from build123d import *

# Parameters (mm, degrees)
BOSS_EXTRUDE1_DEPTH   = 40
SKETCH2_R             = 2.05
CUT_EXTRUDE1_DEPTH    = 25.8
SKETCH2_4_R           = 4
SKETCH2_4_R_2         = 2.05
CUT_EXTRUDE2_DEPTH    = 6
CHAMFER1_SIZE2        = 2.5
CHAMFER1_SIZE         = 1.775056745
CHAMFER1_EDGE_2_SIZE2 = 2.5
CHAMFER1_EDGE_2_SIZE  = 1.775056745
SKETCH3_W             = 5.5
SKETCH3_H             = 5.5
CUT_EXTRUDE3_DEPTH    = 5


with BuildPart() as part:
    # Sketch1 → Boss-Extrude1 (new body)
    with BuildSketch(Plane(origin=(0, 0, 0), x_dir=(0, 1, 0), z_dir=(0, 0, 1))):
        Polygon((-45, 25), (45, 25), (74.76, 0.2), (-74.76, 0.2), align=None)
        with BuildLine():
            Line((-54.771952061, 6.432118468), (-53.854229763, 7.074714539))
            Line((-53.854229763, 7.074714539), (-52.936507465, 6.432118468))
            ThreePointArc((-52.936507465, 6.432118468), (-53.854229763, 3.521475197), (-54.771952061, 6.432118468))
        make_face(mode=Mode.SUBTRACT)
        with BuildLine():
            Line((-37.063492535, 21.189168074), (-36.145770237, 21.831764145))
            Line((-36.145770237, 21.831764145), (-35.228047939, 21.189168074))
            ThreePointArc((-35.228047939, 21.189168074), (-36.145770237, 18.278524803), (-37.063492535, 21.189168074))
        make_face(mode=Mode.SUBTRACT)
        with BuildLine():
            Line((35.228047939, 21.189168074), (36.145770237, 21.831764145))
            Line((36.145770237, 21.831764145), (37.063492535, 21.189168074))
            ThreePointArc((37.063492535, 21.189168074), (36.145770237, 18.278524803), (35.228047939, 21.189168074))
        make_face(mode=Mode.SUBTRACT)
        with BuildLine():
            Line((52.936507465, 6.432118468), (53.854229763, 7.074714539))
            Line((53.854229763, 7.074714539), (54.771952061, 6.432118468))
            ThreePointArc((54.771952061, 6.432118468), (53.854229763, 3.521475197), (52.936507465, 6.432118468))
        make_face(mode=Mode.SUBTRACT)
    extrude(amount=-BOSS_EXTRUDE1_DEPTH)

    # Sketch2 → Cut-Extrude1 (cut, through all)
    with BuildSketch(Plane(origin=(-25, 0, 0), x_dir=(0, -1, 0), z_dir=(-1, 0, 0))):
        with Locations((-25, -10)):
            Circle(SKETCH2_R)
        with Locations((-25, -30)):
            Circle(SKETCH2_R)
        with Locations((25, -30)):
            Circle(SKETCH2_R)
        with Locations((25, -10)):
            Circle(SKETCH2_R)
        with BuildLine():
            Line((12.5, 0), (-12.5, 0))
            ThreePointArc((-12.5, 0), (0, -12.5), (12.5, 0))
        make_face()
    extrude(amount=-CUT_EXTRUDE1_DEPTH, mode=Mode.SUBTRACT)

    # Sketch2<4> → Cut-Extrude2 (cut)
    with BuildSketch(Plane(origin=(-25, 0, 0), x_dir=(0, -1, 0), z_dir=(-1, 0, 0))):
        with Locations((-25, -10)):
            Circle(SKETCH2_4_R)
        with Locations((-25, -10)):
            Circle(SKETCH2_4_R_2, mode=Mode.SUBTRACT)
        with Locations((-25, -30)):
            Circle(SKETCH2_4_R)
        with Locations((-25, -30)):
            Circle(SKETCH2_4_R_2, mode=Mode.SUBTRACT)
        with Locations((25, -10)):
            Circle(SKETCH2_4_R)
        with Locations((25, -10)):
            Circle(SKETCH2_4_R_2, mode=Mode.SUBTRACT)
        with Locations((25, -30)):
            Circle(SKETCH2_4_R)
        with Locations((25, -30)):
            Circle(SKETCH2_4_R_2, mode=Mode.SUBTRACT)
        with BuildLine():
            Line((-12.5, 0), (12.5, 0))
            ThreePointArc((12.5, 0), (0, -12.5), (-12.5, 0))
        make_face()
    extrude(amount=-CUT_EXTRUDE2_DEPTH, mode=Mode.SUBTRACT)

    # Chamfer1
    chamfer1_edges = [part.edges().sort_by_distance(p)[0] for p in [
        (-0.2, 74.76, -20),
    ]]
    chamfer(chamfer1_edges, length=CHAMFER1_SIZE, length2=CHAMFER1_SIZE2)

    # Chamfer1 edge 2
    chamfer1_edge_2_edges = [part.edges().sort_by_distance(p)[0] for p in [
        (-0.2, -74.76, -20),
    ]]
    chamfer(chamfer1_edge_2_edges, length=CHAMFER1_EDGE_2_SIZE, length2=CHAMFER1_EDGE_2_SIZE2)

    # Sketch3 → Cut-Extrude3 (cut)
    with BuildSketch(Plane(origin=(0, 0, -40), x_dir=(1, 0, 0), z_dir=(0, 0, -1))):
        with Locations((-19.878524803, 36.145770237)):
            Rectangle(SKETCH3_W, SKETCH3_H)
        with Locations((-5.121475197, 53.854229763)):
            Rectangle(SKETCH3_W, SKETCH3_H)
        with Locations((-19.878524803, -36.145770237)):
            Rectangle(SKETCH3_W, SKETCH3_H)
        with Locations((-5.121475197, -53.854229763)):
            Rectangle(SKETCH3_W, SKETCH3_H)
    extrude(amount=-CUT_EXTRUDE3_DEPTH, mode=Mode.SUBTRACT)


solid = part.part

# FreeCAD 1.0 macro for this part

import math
import FreeCAD as App
import Part
import Sketcher

V = App.Vector
Q = App.Units.Quantity


def edges_at(feature, points):
    """Names of the edges that pass closest to the given points."""
    edges = feature.Shape.Edges
    near = lambda p: min(range(len(edges)), key=lambda i: edges[i].distToShape(Part.Vertex(*p))[0])
    return sorted({f"Edge{near(p) + 1}" for p in points})


def add_polygon(sketch, points):
    """Adds a closed chain of lines whose ends are joined by coincident constraints."""
    first, n = sketch.GeometryCount, len(points)
    for a, b in zip(points, points[1:] + points[:1]):
        sketch.addGeometry(Part.LineSegment(App.Vector(*a, 0), App.Vector(*b, 0)), False)
    for i in range(n):
        sketch.addConstraint(Sketcher.Constraint("Coincident", first + i, 2, first + (i + 1) % n, 1))

doc = App.newDocument("Part")
body = doc.addObject("PartDesign::Body", "Body")

# Sketch on XY plane
sketch1 = body.newObject("Sketcher::SketchObject", "Sketch")
sketch1.AttachmentSupport = (doc.getObject("XY_Plane"), [""])
sketch1.MapMode = "FlatFace"
add_polygon(sketch1, [(-25, 45), (-25, -45), (-0.2, -74.8), (-0.2, 74.8)])  # lines 0-3
sketch1.addGeometry(Part.LineSegment(V(-6.4, 52.9, 0), V(-7.1, 53.9, 0)), False)  # 4
sketch1.addGeometry(Part.LineSegment(V(-7.1, 53.9, 0), V(-6.4, 54.8, 0)), False)  # 5
sketch1.addGeometry(Part.ArcOfCircle(Part.Circle(V(-5.1, 53.9, 0), V(0, 0, 1), 1.6), math.radians(-145), math.radians(145)), False)  # 6
sketch1.addGeometry(Part.LineSegment(V(-6.4, -54.8, 0), V(-7.1, -53.9, 0)), False)  # 7
sketch1.addGeometry(Part.LineSegment(V(-7.1, -53.9, 0), V(-6.4, -52.9, 0)), False)  # 8
sketch1.addGeometry(Part.ArcOfCircle(Part.Circle(V(-5.1, -53.9, 0), V(0, 0, 1), 1.6), math.radians(-145), math.radians(145)), False)  # 9
sketch1.addGeometry(Part.LineSegment(V(-21.2, 35.2, 0), V(-21.8, 36.1, 0)), False)  # 10
sketch1.addGeometry(Part.LineSegment(V(-21.8, 36.1, 0), V(-21.2, 37.1, 0)), False)  # 11
sketch1.addGeometry(Part.ArcOfCircle(Part.Circle(V(-19.9, 36.1, 0), V(0, 0, 1), 1.6), math.radians(-145), math.radians(145)), False)  # 12
sketch1.addGeometry(Part.LineSegment(V(-21.2, -37.1, 0), V(-21.8, -36.1, 0)), False)  # 13
sketch1.addGeometry(Part.LineSegment(V(-21.8, -36.1, 0), V(-21.2, -35.2, 0)), False)  # 14
sketch1.addGeometry(Part.ArcOfCircle(Part.Circle(V(-19.9, -36.1, 0), V(0, 0, 1), 1.6), math.radians(-145), math.radians(145)), False)  # 15
sketch1.addConstraint(Sketcher.Constraint("Coincident", 4, 2, 5, 1))
sketch1.addConstraint(Sketcher.Constraint("Tangent", 5, 2, 6, 2))
sketch1.addConstraint(Sketcher.Constraint("Tangent", 6, 1, 4, 1))
sketch1.addConstraint(Sketcher.Constraint("Coincident", 7, 2, 8, 1))
sketch1.addConstraint(Sketcher.Constraint("Tangent", 8, 2, 9, 2))
sketch1.addConstraint(Sketcher.Constraint("Tangent", 9, 1, 7, 1))
sketch1.addConstraint(Sketcher.Constraint("Coincident", 10, 2, 11, 1))
sketch1.addConstraint(Sketcher.Constraint("Tangent", 11, 2, 12, 2))
sketch1.addConstraint(Sketcher.Constraint("Tangent", 12, 1, 10, 1))
sketch1.addConstraint(Sketcher.Constraint("Coincident", 13, 2, 14, 1))
sketch1.addConstraint(Sketcher.Constraint("Tangent", 14, 2, 15, 2))
sketch1.addConstraint(Sketcher.Constraint("Tangent", 15, 1, 13, 1))
sketch1.addConstraint(Sketcher.Constraint("Vertical", 0))
sketch1.addConstraint(Sketcher.Constraint("Vertical", 2))
sketch1.addConstraint(Sketcher.Constraint("Equal", 6, 9))
sketch1.addConstraint(Sketcher.Constraint("Equal", 9, 12))
sketch1.addConstraint(Sketcher.Constraint("Equal", 12, 15))
sketch1.addConstraint(Sketcher.Constraint("Symmetric", 6, 3, 9, 3, -1))
sketch1.addConstraint(Sketcher.Constraint("Symmetric", 12, 3, 15, 3, -1))
sketch1.addConstraint(Sketcher.Constraint("Symmetric", 4, 2, 7, 2, -1))
sketch1.addConstraint(Sketcher.Constraint("Symmetric", 10, 2, 13, 2, -1))
sketch1.addConstraint(Sketcher.Constraint("Parallel", 4, 7))
sketch1.addConstraint(Sketcher.Constraint("Parallel", 7, 10))
sketch1.addConstraint(Sketcher.Constraint("Parallel", 8, 11))
sketch1.addConstraint(Sketcher.Constraint("Equal", 1, 3))
sketch1.addConstraint(Sketcher.Constraint("Radius", 6, Q("1.6 mm")))
sketch1.addConstraint(Sketcher.Constraint("DistanceY", 0, 2, 0, 1, Q("90 mm")))
sketch1.addConstraint(Sketcher.Constraint("Angle", 4, Q("125 deg")))
sketch1.addConstraint(Sketcher.Constraint("DistanceX", 0, 2, -1, 1, Q("25 mm")))
sketch1.addConstraint(Sketcher.Constraint("DistanceY", 0, 2, -1, 1, Q("45 mm")))
sketch1.addConstraint(Sketcher.Constraint("DistanceY", 9, 3, 12, 3, Q("90 mm")))
sketch1.addConstraint(Sketcher.Constraint("DistanceY", 2, 1, 2, 2, Q("149.52 mm")))
sketch1.addConstraint(Sketcher.Constraint("DistanceX", 1, 2, -1, 1, Q("0.2 mm")))
sketch1.addConstraint(Sketcher.Constraint("DistanceY", -1, 1, 6, 3, Q("53.85423 mm")))
sketch1.addConstraint(Sketcher.Constraint("DistanceX", 5, 2, -1, 1, Q("6.432118 mm")))
sketch1.addConstraint(Sketcher.Constraint("DistanceX", 11, 2, -1, 1, Q("21.189168 mm")))
pad1 = body.newObject("PartDesign::Pad", "Pad")
pad1.Profile = sketch1
pad1.Length = 40
pad1.Reversed = True

# Sketch on YZ plane
sketch2 = body.newObject("Sketcher::SketchObject", "Sketch001")
sketch2.AttachmentSupport = (doc.getObject("YZ_Plane"), [""])
sketch2.MapMode = "FlatFace"
sketch2.AttachmentOffset = App.Placement(V(0, 0, -25), App.Rotation())
sketch2.addGeometry(Part.Circle(V(25, -10, 0), V(0, 0, 1), 2), False)
sketch2.addGeometry(Part.Circle(V(25, -30, 0), V(0, 0, 1), 2), False)
sketch2.addGeometry(Part.Circle(V(-25, -30, 0), V(0, 0, 1), 2), False)
sketch2.addGeometry(Part.Circle(V(-25, -10, 0), V(0, 0, 1), 2), False)
sketch2.addGeometry(Part.LineSegment(V(-12.5, 0, 0), V(12.5, 0, 0)), False)
sketch2.addGeometry(Part.ArcOfCircle(Part.Circle(V(0, 0, 0), V(0, 0, 1), 12.5), math.radians(180), math.radians(360)), False)
sketch2.addConstraint(Sketcher.Constraint("Coincident", 4, 1, 5, 1))
sketch2.addConstraint(Sketcher.Constraint("Coincident", 5, 2, 4, 2))
sketch2.addConstraint(Sketcher.Constraint("Horizontal", 4))
sketch2.addConstraint(Sketcher.Constraint("Coincident", 5, 3, -1, 1))
sketch2.addConstraint(Sketcher.Constraint("Equal", 0, 1))
sketch2.addConstraint(Sketcher.Constraint("Equal", 1, 2))
sketch2.addConstraint(Sketcher.Constraint("Equal", 2, 3))
sketch2.addConstraint(Sketcher.Constraint("Symmetric", 1, 3, 2, 3, -2))
sketch2.addConstraint(Sketcher.Constraint("Symmetric", 0, 3, 3, 3, -2))
sketch2.addConstraint(Sketcher.Constraint("PointOnObject", 4, 1, -1))
sketch2.addConstraint(Sketcher.Constraint("Vertical", 0, 3, 1, 3))
sketch2.addConstraint(Sketcher.Constraint("Diameter", 0, Q("4.1 mm")))
sketch2.addConstraint(Sketcher.Constraint("Radius", 5, Q("12.5 mm")))
sketch2.addConstraint(Sketcher.Constraint("DistanceX", -1, 1, 0, 3, Q("25 mm")))
sketch2.addConstraint(Sketcher.Constraint("DistanceY", 0, 3, -1, 1, Q("10 mm")))
sketch2.addConstraint(Sketcher.Constraint("DistanceY", 1, 3, -1, 1, Q("30 mm")))
pocket1 = body.newObject("PartDesign::Pocket", "Pocket")
pocket1.Profile = sketch2
pocket1.Type = "ThroughAll"
pocket1.Reversed = True

# Sketch on YZ plane
sketch3 = body.newObject("Sketcher::SketchObject", "Sketch002")
sketch3.AttachmentSupport = (doc.getObject("YZ_Plane"), [""])
sketch3.MapMode = "FlatFace"
sketch3.AttachmentOffset = App.Placement(V(0, 0, -25), App.Rotation())
sketch3.addGeometry(Part.Circle(V(25, -10, 0), V(0, 0, 1), 4), False)
sketch3.addGeometry(Part.Circle(V(25, -10, 0), V(0, 0, 1), 2), False)
sketch3.addGeometry(Part.Circle(V(25, -30, 0), V(0, 0, 1), 4), False)
sketch3.addGeometry(Part.Circle(V(25, -30, 0), V(0, 0, 1), 2), False)
sketch3.addGeometry(Part.Circle(V(-25, -10, 0), V(0, 0, 1), 4), False)
sketch3.addGeometry(Part.Circle(V(-25, -10, 0), V(0, 0, 1), 2), False)
sketch3.addGeometry(Part.Circle(V(-25, -30, 0), V(0, 0, 1), 4), False)
sketch3.addGeometry(Part.Circle(V(-25, -30, 0), V(0, 0, 1), 2), False)
sketch3.addGeometry(Part.LineSegment(V(-12.5, 0, 0), V(12.5, 0, 0)), False)
sketch3.addGeometry(Part.ArcOfCircle(Part.Circle(V(0, 0, 0), V(0, 0, 1), 12.5), math.radians(180), math.radians(360)), False)
sketch3.addConstraint(Sketcher.Constraint("Coincident", 8, 1, 9, 1))
sketch3.addConstraint(Sketcher.Constraint("Coincident", 9, 2, 8, 2))
sketch3.addConstraint(Sketcher.Constraint("Horizontal", 8))
sketch3.addConstraint(Sketcher.Constraint("Coincident", 9, 3, -1, 1))
sketch3.addConstraint(Sketcher.Constraint("Coincident", 1, 3, 0, 3))
sketch3.addConstraint(Sketcher.Constraint("Coincident", 3, 3, 2, 3))
sketch3.addConstraint(Sketcher.Constraint("Coincident", 5, 3, 4, 3))
sketch3.addConstraint(Sketcher.Constraint("Coincident", 7, 3, 6, 3))
sketch3.addConstraint(Sketcher.Constraint("Equal", 0, 2))
sketch3.addConstraint(Sketcher.Constraint("Equal", 1, 3))
sketch3.addConstraint(Sketcher.Constraint("Equal", 2, 4))
sketch3.addConstraint(Sketcher.Constraint("Equal", 3, 5))
sketch3.addConstraint(Sketcher.Constraint("Equal", 4, 6))
sketch3.addConstraint(Sketcher.Constraint("Equal", 5, 7))
sketch3.addConstraint(Sketcher.Constraint("Symmetric", 0, 3, 4, 3, -2))
sketch3.addConstraint(Sketcher.Constraint("Symmetric", 2, 3, 6, 3, -2))
sketch3.addConstraint(Sketcher.Constraint("PointOnObject", 8, 1, -1))
sketch3.addConstraint(Sketcher.Constraint("Vertical", 1, 3, 2, 3))
sketch3.addConstraint(Sketcher.Constraint("Diameter", 0, Q("8 mm")))
sketch3.addConstraint(Sketcher.Constraint("Diameter", 1, Q("4.1 mm")))
sketch3.addConstraint(Sketcher.Constraint("Radius", 9, Q("12.5 mm")))
sketch3.addConstraint(Sketcher.Constraint("DistanceX", -1, 1, 0, 3, Q("25 mm")))
sketch3.addConstraint(Sketcher.Constraint("DistanceY", 0, 3, -1, 1, Q("10 mm")))
sketch3.addConstraint(Sketcher.Constraint("DistanceY", 2, 3, -1, 1, Q("30 mm")))
pocket2 = body.newObject("PartDesign::Pocket", "Pocket001")
pocket2.Profile = sketch3
pocket2.Length = 6
pocket2.Reversed = True
doc.recompute()

chamfer = body.newObject("PartDesign::Chamfer", "Chamfer")
chamfer.Base = (pocket2, edges_at(pocket2, [(-0.2, 74.76, -20)]))
chamfer.ChamferType = "Two distances"
chamfer.Size = 1.775057
chamfer.Size2 = 2.5
chamfer.FlipDirection = True
doc.recompute()

chamfer2 = body.newObject("PartDesign::Chamfer", "Chamfer001")
chamfer2.Base = (chamfer, edges_at(chamfer, [(-0.2, -74.76, -20)]))
chamfer2.ChamferType = "Two distances"
chamfer2.Size = 1.775057
chamfer2.Size2 = 2.5

# Sketch on XY plane
sketch4 = body.newObject("Sketcher::SketchObject", "Sketch003")
sketch4.AttachmentSupport = (doc.getObject("XY_Plane"), [""])
sketch4.MapMode = "FlatFace"
sketch4.AttachmentOffset = App.Placement(V(0, 0, -40), App.Rotation())
add_polygon(sketch4, [(-23, -39), (-23, -33), (-17, -33), (-17, -39)])  # lines 0-3
add_polygon(sketch4, [(-8, -57), (-8, -51), (-2, -51), (-2, -57)])  # lines 4-7
add_polygon(sketch4, [(-23, 33), (-23, 39), (-17, 39), (-17, 33)])  # lines 8-11
add_polygon(sketch4, [(-8, 51), (-8, 57), (-2, 57), (-2, 51)])  # lines 12-15
sketch4.addConstraint(Sketcher.Constraint("Vertical", 0))
sketch4.addConstraint(Sketcher.Constraint("Horizontal", 1))
sketch4.addConstraint(Sketcher.Constraint("Vertical", 2))
sketch4.addConstraint(Sketcher.Constraint("Horizontal", 3))
sketch4.addConstraint(Sketcher.Constraint("Vertical", 4))
sketch4.addConstraint(Sketcher.Constraint("Horizontal", 5))
sketch4.addConstraint(Sketcher.Constraint("Vertical", 6))
sketch4.addConstraint(Sketcher.Constraint("Horizontal", 7))
sketch4.addConstraint(Sketcher.Constraint("Vertical", 8))
sketch4.addConstraint(Sketcher.Constraint("Horizontal", 9))
sketch4.addConstraint(Sketcher.Constraint("Vertical", 10))
sketch4.addConstraint(Sketcher.Constraint("Horizontal", 11))
sketch4.addConstraint(Sketcher.Constraint("Vertical", 12))
sketch4.addConstraint(Sketcher.Constraint("Horizontal", 13))
sketch4.addConstraint(Sketcher.Constraint("Vertical", 14))
sketch4.addConstraint(Sketcher.Constraint("Horizontal", 15))
sketch4.addConstraint(Sketcher.Constraint("Symmetric", 3, 2, 8, 2, -1))
sketch4.addConstraint(Sketcher.Constraint("Symmetric", 1, 2, 10, 2, -1))
sketch4.addConstraint(Sketcher.Constraint("Symmetric", 7, 2, 12, 2, -1))
sketch4.addConstraint(Sketcher.Constraint("Symmetric", 5, 2, 14, 2, -1))
sketch4.addConstraint(Sketcher.Constraint("Equal", 3, 5))
sketch4.addConstraint(Sketcher.Constraint("Equal", 15, 0))
sketch4.addConstraint(Sketcher.Constraint("Equal", 2, 4))
sketch4.addConstraint(Sketcher.Constraint("DistanceX", 1, 1, 1, 2, Q("5.5 mm")))
sketch4.addConstraint(Sketcher.Constraint("DistanceY", 4, 2, 8, 2, Q("90 mm")))
sketch4.addConstraint(Sketcher.Constraint("DistanceY", 0, 2, -1, 1, Q("33.39577 mm")))
sketch4.addConstraint(Sketcher.Constraint("DistanceX", 2, 2, 4, 2, Q("9.25705 mm")))
sketch4.addConstraint(Sketcher.Constraint("DistanceX", 0, 2, -1, 1, Q("22.628525 mm")))
pocket3 = body.newObject("PartDesign::Pocket", "Pocket002")
pocket3.Profile = sketch4
pocket3.Length = 5
pocket3.Reversed = True

doc.recompute()
